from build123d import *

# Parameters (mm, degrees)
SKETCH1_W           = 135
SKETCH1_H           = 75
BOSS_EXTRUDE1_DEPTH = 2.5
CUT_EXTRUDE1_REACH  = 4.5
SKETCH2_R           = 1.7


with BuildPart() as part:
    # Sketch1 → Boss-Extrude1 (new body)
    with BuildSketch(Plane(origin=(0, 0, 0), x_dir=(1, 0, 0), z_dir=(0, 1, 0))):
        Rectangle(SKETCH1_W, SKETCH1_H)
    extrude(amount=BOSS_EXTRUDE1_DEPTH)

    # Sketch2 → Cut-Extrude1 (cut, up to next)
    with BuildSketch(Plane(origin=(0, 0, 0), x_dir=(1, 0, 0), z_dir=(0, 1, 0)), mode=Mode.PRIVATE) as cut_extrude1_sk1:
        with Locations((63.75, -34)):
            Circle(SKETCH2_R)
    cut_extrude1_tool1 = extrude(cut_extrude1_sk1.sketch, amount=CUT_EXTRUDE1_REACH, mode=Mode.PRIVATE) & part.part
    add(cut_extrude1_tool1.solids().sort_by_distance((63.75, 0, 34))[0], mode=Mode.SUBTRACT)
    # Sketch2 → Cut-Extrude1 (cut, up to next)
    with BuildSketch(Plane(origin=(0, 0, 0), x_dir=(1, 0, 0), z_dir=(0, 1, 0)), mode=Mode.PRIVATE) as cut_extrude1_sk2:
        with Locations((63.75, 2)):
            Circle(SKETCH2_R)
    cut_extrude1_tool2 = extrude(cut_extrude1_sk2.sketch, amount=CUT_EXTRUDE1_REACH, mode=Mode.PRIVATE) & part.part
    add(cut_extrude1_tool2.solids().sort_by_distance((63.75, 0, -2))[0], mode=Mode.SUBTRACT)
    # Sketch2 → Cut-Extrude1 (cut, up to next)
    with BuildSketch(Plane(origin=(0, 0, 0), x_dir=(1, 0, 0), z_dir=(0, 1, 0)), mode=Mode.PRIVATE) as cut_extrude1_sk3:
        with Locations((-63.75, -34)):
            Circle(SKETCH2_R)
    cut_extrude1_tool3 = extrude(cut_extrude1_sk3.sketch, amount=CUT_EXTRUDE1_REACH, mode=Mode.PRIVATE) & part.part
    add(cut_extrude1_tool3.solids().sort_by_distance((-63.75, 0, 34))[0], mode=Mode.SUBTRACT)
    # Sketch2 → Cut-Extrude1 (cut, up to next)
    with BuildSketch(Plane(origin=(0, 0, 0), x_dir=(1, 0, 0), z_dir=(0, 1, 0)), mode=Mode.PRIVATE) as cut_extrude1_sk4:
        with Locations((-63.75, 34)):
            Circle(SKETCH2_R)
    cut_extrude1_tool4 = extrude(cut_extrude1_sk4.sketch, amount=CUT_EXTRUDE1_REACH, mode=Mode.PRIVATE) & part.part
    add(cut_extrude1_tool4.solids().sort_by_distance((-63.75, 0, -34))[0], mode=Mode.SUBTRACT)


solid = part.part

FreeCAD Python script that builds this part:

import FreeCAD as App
import Part
import Sketcher


def add_polygon(sketch, points):
    """Adds a closed chain of lines whose ends are joined by coincident constraints."""
    first, n = sketch.GeometryCount, len(points)
    for a, b in zip(points, points[1:] + points[:1]):
        sketch.addGeometry(Part.LineSegment(App.Vector(*a, 0), App.Vector(*b, 0)), False)
    for i in range(n):
        sketch.addConstraint(Sketcher.Constraint("Coincident", first + i, 2, first + (i + 1) % n, 1))

doc = App.newDocument("Part")
body = doc.addObject("PartDesign::Body", "Body")

# Sketch on XZ plane
sketch1 = body.newObject("Sketcher::SketchObject", "Sketch")
sketch1.AttachmentSupport = (doc.getObject("XZ_Plane"), [""])
sketch1.MapMode = "FlatFace"
add_polygon(sketch1, [(-68, -38), (-68, 38), (68, 38), (68, -38)])  # lines 0-3
sketch1.addConstraint([
    Sketcher.Constraint("Vertical", 0),
    Sketcher.Constraint("Horizontal", 1),
    Sketcher.Constraint("Vertical", 2),
    Sketcher.Constraint("Horizontal", 3),
    Sketcher.Constraint("Symmetric", 0, 2, 2, 2, -1, 1),
    Sketcher.Constraint("DistanceX", 1, 1, 1, 2, 135.0),
    Sketcher.Constraint("DistanceY", 0, 1, 0, 2, 75.0),
])
pad1 = body.newObject("PartDesign::Pad", "Pad")
pad1.Profile = sketch1
pad1.Length = 2.5
pad1.Reversed = True

# Sketch on XZ plane
sketch2 = body.newObject("Sketcher::SketchObject", "Sketch001")
sketch2.AttachmentSupport = (doc.getObject("XZ_Plane"), [""])
sketch2.MapMode = "FlatFace"
sketch2.addGeometry(Part.Circle(App.Vector(63.8, 34, 0), App.Vector(0, 0, 1), 1.7), False)
sketch2.addConstraint([
    Sketcher.Constraint("Diameter", 0, 3.4),
    Sketcher.Constraint("DistanceY", -1, 1, 0, 3, 34.0),
    Sketcher.Constraint("DistanceX", -1, 1, 0, 3, 63.75),
])
pocket1 = body.newObject("PartDesign::Pocket", "Pocket")
pocket1.Profile = sketch2
pocket1.Type = "UpToFirst"

# Sketch on XZ plane
sketch3 = body.newObject("Sketcher::SketchObject", "Sketch002")
sketch3.AttachmentSupport = (doc.getObject("XZ_Plane"), [""])
sketch3.MapMode = "FlatFace"
sketch3.addGeometry(Part.Circle(App.Vector(63.8, -2, 0), App.Vector(0, 0, 1), 1.7), False)
sketch3.addConstraint([
    Sketcher.Constraint("Diameter", 0, 3.4),
    Sketcher.Constraint("DistanceY", 0, 3, -1, 1, 2.0),
    Sketcher.Constraint("DistanceX", -1, 1, 0, 3, 63.75),
])
pocket2 = body.newObject("PartDesign::Pocket", "Pocket001")
pocket2.Profile = sketch3
pocket2.Type = "UpToFirst"

# Sketch on XZ plane
sketch4 = body.newObject("Sketcher::SketchObject", "Sketch003")
sketch4.AttachmentSupport = (doc.getObject("XZ_Plane"), [""])
sketch4.MapMode = "FlatFace"
sketch4.addGeometry(Part.Circle(App.Vector(-63.8, 34, 0), App.Vector(0, 0, 1), 1.7), False)
sketch4.addConstraint([
    Sketcher.Constraint("Diameter", 0, 3.4),
    Sketcher.Constraint("DistanceY", -1, 1, 0, 3, 34.0),
    Sketcher.Constraint("DistanceX", 0, 3, -1, 1, 63.75),
])
pocket3 = body.newObject("PartDesign::Pocket", "Pocket002")
pocket3.Profile = sketch4
pocket3.Type = "UpToFirst"

# Sketch on XZ plane
sketch5 = body.newObject("Sketcher::SketchObject", "Sketch004")
sketch5.AttachmentSupport = (doc.getObject("XZ_Plane"), [""])
sketch5.MapMode = "FlatFace"
sketch5.addGeometry(Part.Circle(App.Vector(-63.8, -34, 0), App.Vector(0, 0, 1), 1.7), False)
sketch5.addConstraint([
    Sketcher.Constraint("Diameter", 0, 3.4),
    Sketcher.Constraint("DistanceY", 0, 3, -1, 1, 34.0),
    Sketcher.Constraint("DistanceX", 0, 3, -1, 1, 63.75),
])
pocket4 = body.newObject("PartDesign::Pocket", "Pocket003")
pocket4.Profile = sketch5
pocket4.Type = "UpToFirst"

doc.recompute()
